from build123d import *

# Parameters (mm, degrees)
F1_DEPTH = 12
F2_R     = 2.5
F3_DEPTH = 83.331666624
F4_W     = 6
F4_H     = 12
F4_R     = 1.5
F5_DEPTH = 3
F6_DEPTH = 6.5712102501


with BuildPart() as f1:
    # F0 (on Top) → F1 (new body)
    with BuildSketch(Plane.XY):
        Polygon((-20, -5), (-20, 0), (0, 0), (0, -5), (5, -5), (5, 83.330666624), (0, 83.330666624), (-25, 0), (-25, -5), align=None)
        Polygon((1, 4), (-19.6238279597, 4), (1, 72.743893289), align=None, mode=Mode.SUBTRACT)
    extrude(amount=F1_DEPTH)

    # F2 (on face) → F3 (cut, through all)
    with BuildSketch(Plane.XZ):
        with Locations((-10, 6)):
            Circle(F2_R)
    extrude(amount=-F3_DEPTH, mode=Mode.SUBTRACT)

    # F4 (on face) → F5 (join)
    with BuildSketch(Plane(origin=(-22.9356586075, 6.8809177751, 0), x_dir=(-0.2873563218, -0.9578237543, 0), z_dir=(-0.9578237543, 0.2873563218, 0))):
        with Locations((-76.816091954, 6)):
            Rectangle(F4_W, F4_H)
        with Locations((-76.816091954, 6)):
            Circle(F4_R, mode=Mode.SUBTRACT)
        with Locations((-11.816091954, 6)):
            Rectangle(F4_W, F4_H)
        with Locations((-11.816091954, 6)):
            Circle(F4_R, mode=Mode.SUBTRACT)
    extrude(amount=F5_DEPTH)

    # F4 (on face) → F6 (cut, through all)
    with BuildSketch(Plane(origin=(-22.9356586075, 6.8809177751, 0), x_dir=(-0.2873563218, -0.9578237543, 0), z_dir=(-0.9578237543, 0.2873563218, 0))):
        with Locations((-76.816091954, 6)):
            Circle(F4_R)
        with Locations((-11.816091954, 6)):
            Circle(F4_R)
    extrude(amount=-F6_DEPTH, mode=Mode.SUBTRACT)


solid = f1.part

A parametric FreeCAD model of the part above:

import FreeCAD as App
import Part
import Sketcher

V = App.Vector


def add_polygon(sketch, points):
    """Adds a closed chain of lines whose ends are joined by coincident constraints."""
    first, n = sketch.GeometryCount, len(points)
    for a, b in zip(points, points[1:] + points[:1]):
        sketch.addGeometry(Part.LineSegment(App.Vector(*a, 0), App.Vector(*b, 0)), False)
    for i in range(n):
        sketch.addConstraint(Sketcher.Constraint("Coincident", first + i, 2, first + (i + 1) % n, 1))

doc = App.newDocument("Part")
body = doc.addObject("PartDesign::Body", "Body")

sketch1 = doc.addObject("Sketcher::SketchObject", "Sketch")
body.addObject(sketch1)
sketch1.AttachmentSupport = (doc.XY_Plane, [""])
sketch1.MapMode = "FlatFace"
add_polygon(sketch1, [(-20, -5), (-20, 0), (0, 0), (0, -5), (5, -5), (5, 83), (0, 83), (-25, 0), (-25, -5)])
add_polygon(sketch1, [(1, 73), (1, 4), (-20, 4)])
sketch1.addConstraint(Sketcher.Constraint("Vertical", 0))
sketch1.addConstraint(Sketcher.Constraint("Horizontal", 1))
sketch1.addConstraint(Sketcher.Constraint("Vertical", 2))
sketch1.addConstraint(Sketcher.Constraint("Horizontal", 3))
sketch1.addConstraint(Sketcher.Constraint("Vertical", 4))
sketch1.addConstraint(Sketcher.Constraint("Horizontal", 5))
sketch1.addConstraint(Sketcher.Constraint("Vertical", 7))
sketch1.addConstraint(Sketcher.Constraint("Horizontal", 8))
sketch1.addConstraint(Sketcher.Constraint("Vertical", 9))
sketch1.addConstraint(Sketcher.Constraint("Horizontal", 10))
sketch1.addConstraint(Sketcher.Constraint("Coincident", 1, 2, -1, 1))
sketch1.addConstraint(Sketcher.Constraint("PointOnObject", 5, 2, -2))
sketch1.addConstraint(Sketcher.Constraint("PointOnObject", 6, 2, -1))
sketch1.addConstraint(Sketcher.Constraint("Parallel", 6, 11))
sketch1.addConstraint(Sketcher.Constraint("Horizontal", 3, 2, 7, 2))
sketch1.addConstraint(Sketcher.Constraint("Equal", 5, 8))
sketch1.addConstraint(Sketcher.Constraint("Equal", 8, 0))
sketch1.addConstraint(Sketcher.Constraint("DistanceX", 1, 1, 1, 2, 20.0))
sketch1.addConstraint(Sketcher.Constraint("DistanceX", 3, 1, 3, 2, 5.0))
sketch1.addConstraint(Sketcher.Constraint("Distance", 6, 87.0))
sketch1.addConstraint(Sketcher.Constraint("DistanceX", -1, 1, 9, 2, 1.0))
sketch1.addConstraint(Sketcher.Constraint("DistanceY", -1, 1, 9, 2, 4.0))
sketch1.addConstraint(Sketcher.Constraint("Distance", 11, 71.770921))
pad1 = doc.addObject("PartDesign::Pad", "Pad")
body.addObject(pad1)
pad1.Profile = sketch1
pad1.Length = 12

sketch2 = doc.addObject("Sketcher::SketchObject", "Sketch001")
body.addObject(sketch2)
sketch2.AttachmentSupport = (doc.XZ_Plane, [""])
sketch2.MapMode = "FlatFace"
sketch2.addGeometry(Part.Circle(V(-10, 6, 0), V(0, 0, 1), 2.5), False)
sketch2.addConstraint(Sketcher.Constraint("Diameter", 0, 5.0))
sketch2.addConstraint(Sketcher.Constraint("DistanceX", 0, 3, -1, 1, 10.0))
sketch2.addConstraint(Sketcher.Constraint("DistanceY", -1, 1, 0, 3, 6.0))
pocket1 = doc.addObject("PartDesign::Pocket", "Pocket")
body.addObject(pocket1)
pocket1.Profile = sketch2
pocket1.Type = "ThroughAll"

sketch3 = doc.addObject("Sketcher::SketchObject", "Sketch002")
body.addObject(sketch3)
sketch3.Placement = App.Placement(V(-22.935659, 6.880918, 0), App.Rotation(V(-0.287356322, -0.957823754, 0), V(0, 0, 1), V(-0.957823754, 0.287356322, 0), "ZXY"))
add_polygon(sketch3, [(-79.8, 12), (-79.8, 0), (-73.8, 0), (-73.8, 12)])
sketch3.addGeometry(Part.Circle(V(-76.8, 6, 0), V(0, 0, 1), 1.5), False)
add_polygon(sketch3, [(-14.8, 12), (-14.8, 0), (-8.8, 0), (-8.8, 12)])
sketch3.addGeometry(Part.Circle(V(-11.8, 6, 0), V(0, 0, 1), 1.5), False)
sketch3.addConstraint(Sketcher.Constraint("Vertical", 0))
sketch3.addConstraint(Sketcher.Constraint("Horizontal", 1))
sketch3.addConstraint(Sketcher.Constraint("Vertical", 2))
sketch3.addConstraint(Sketcher.Constraint("Horizontal", 3))
sketch3.addConstraint(Sketcher.Constraint("Vertical", 5))
sketch3.addConstraint(Sketcher.Constraint("Horizontal", 6))
sketch3.addConstraint(Sketcher.Constraint("Vertical", 7))
sketch3.addConstraint(Sketcher.Constraint("Horizontal", 8))
sketch3.addConstraint(Sketcher.Constraint("Equal", 4, 9))
sketch3.addConstraint(Sketcher.Constraint("PointOnObject", 0, 2, -1))
sketch3.addConstraint(Sketcher.Constraint("PointOnObject", 5, 2, -1))
sketch3.addConstraint(Sketcher.Constraint("Horizontal", 4, 3, 9, 3))
sketch3.addConstraint(Sketcher.Constraint("Horizontal", 3, 2, 7, 2))
sketch3.addConstraint(Sketcher.Constraint("Equal", 3, 6))
sketch3.addConstraint(Sketcher.Constraint("Diameter", 4, 3.0))
sketch3.addConstraint(Sketcher.Constraint("DistanceX", 1, 1, 1, 2, 6.0))
sketch3.addConstraint(Sketcher.Constraint("DistanceY", 0, 2, 0, 1, 12.0))
sketch3.addConstraint(Sketcher.Constraint("DistanceY", -1, 1, 4, 3, 6.0))
sketch3.addConstraint(Sketcher.Constraint("DistanceX", 4, 3, 9, 3, 65.0))
sketch3.addConstraint(Sketcher.Constraint("DistanceX", 0, 2, 4, 3, 3.0))
sketch3.addConstraint(Sketcher.Constraint("DistanceX", 5, 2, 9, 3, 3.0))
sketch3.addConstraint(Sketcher.Constraint("DistanceX", 4, 3, -1, 1, 76.816092))
pad2 = doc.addObject("PartDesign::Pad", "Pad001")
body.addObject(pad2)
pad2.Profile = sketch3
pad2.Length = 3

sketch4 = doc.addObject("Sketcher::SketchObject", "Sketch003")
body.addObject(sketch4)
sketch4.Placement = App.Placement(V(-22.935659, 6.880918, 0), App.Rotation(V(-0.287356322, -0.957823754, 0), V(0, 0, 1), V(-0.957823754, 0.287356322, 0), "ZXY"))
sketch4.addGeometry(Part.Circle(V(-76.8, 6, 0), V(0, 0, 1), 1.5), False)
sketch4.addGeometry(Part.Circle(V(-11.8, 6, 0), V(0, 0, 1), 1.5), False)
sketch4.addConstraint(Sketcher.Constraint("Equal", 0, 1))
sketch4.addConstraint(Sketcher.Constraint("Horizontal", 0, 3, 1, 3))
sketch4.addConstraint(Sketcher.Constraint("Diameter", 0, 3.0))
sketch4.addConstraint(Sketcher.Constraint("DistanceY", -1, 1, 0, 3, 6.0))
sketch4.addConstraint(Sketcher.Constraint("DistanceX", 0, 3, 1, 3, 65.0))
sketch4.addConstraint(Sketcher.Constraint("DistanceX", 0, 3, -1, 1, 76.816092))
pocket2 = doc.addObject("PartDesign::Pocket", "Pocket001")
body.addObject(pocket2)
pocket2.Profile = sketch4
pocket2.Length = 6.57121

doc.recompute()
